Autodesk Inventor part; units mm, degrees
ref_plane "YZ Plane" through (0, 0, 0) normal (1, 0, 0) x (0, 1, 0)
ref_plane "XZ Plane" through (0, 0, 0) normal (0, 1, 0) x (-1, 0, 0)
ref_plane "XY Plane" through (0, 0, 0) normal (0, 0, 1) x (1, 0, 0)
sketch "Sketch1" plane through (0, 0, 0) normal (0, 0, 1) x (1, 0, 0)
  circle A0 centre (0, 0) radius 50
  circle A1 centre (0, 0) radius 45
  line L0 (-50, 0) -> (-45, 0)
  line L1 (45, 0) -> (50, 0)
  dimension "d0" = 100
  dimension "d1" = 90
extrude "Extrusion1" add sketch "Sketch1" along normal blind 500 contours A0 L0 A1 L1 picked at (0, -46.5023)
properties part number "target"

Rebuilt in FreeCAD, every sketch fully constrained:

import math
import FreeCAD as App
import Part
import Sketcher

V = App.Vector

doc = App.newDocument("Part")
body = doc.addObject("PartDesign::Body", "Body")

sketch1 = body.newObject("Sketcher::SketchObject", "Sketch")
sketch1.AttachmentSupport = (doc.getObject("XY_Plane"), [""])
sketch1.MapMode = "FlatFace"
sketch1.addGeometry([
    Part.ArcOfCircle(Part.Circle(V(0, 0, 0), V(0, 0, 1), 50), math.radians(180), math.radians(360)),
    Part.LineSegment(V(50, 0, 0), V(45, 0, 0)),
    Part.ArcOfCircle(Part.Circle(V(0, 0, 0), V(0, 0, 1), 45), math.radians(180), math.radians(360)),
    Part.LineSegment(V(-45, 0, 0), V(-50, 0, 0)),
], False)
sketch1.addConstraint([
    Sketcher.Constraint("Coincident", 0, 2, 1, 1),
    Sketcher.Constraint("Coincident", 1, 2, 2, 2),
    Sketcher.Constraint("Coincident", 2, 1, 3, 1),
    Sketcher.Constraint("Coincident", 3, 2, 0, 1),
    Sketcher.Constraint("Horizontal", 1),
    Sketcher.Constraint("Horizontal", 3),
    Sketcher.Constraint("Coincident", 0, 3, -1, 1),
    Sketcher.Constraint("Coincident", 2, 3, -1, 1),
    Sketcher.Constraint("PointOnObject", 0, 2, -1),
    Sketcher.Constraint("PointOnObject", 2, 1, -1),
    Sketcher.Constraint("Radius", 0, 50.0),
    Sketcher.Constraint("Radius", 2, 45.0),
])
pad1 = body.newObject("PartDesign::Pad", "Pad")
pad1.Profile = sketch1
pad1.Length = 500

doc.recompute()
